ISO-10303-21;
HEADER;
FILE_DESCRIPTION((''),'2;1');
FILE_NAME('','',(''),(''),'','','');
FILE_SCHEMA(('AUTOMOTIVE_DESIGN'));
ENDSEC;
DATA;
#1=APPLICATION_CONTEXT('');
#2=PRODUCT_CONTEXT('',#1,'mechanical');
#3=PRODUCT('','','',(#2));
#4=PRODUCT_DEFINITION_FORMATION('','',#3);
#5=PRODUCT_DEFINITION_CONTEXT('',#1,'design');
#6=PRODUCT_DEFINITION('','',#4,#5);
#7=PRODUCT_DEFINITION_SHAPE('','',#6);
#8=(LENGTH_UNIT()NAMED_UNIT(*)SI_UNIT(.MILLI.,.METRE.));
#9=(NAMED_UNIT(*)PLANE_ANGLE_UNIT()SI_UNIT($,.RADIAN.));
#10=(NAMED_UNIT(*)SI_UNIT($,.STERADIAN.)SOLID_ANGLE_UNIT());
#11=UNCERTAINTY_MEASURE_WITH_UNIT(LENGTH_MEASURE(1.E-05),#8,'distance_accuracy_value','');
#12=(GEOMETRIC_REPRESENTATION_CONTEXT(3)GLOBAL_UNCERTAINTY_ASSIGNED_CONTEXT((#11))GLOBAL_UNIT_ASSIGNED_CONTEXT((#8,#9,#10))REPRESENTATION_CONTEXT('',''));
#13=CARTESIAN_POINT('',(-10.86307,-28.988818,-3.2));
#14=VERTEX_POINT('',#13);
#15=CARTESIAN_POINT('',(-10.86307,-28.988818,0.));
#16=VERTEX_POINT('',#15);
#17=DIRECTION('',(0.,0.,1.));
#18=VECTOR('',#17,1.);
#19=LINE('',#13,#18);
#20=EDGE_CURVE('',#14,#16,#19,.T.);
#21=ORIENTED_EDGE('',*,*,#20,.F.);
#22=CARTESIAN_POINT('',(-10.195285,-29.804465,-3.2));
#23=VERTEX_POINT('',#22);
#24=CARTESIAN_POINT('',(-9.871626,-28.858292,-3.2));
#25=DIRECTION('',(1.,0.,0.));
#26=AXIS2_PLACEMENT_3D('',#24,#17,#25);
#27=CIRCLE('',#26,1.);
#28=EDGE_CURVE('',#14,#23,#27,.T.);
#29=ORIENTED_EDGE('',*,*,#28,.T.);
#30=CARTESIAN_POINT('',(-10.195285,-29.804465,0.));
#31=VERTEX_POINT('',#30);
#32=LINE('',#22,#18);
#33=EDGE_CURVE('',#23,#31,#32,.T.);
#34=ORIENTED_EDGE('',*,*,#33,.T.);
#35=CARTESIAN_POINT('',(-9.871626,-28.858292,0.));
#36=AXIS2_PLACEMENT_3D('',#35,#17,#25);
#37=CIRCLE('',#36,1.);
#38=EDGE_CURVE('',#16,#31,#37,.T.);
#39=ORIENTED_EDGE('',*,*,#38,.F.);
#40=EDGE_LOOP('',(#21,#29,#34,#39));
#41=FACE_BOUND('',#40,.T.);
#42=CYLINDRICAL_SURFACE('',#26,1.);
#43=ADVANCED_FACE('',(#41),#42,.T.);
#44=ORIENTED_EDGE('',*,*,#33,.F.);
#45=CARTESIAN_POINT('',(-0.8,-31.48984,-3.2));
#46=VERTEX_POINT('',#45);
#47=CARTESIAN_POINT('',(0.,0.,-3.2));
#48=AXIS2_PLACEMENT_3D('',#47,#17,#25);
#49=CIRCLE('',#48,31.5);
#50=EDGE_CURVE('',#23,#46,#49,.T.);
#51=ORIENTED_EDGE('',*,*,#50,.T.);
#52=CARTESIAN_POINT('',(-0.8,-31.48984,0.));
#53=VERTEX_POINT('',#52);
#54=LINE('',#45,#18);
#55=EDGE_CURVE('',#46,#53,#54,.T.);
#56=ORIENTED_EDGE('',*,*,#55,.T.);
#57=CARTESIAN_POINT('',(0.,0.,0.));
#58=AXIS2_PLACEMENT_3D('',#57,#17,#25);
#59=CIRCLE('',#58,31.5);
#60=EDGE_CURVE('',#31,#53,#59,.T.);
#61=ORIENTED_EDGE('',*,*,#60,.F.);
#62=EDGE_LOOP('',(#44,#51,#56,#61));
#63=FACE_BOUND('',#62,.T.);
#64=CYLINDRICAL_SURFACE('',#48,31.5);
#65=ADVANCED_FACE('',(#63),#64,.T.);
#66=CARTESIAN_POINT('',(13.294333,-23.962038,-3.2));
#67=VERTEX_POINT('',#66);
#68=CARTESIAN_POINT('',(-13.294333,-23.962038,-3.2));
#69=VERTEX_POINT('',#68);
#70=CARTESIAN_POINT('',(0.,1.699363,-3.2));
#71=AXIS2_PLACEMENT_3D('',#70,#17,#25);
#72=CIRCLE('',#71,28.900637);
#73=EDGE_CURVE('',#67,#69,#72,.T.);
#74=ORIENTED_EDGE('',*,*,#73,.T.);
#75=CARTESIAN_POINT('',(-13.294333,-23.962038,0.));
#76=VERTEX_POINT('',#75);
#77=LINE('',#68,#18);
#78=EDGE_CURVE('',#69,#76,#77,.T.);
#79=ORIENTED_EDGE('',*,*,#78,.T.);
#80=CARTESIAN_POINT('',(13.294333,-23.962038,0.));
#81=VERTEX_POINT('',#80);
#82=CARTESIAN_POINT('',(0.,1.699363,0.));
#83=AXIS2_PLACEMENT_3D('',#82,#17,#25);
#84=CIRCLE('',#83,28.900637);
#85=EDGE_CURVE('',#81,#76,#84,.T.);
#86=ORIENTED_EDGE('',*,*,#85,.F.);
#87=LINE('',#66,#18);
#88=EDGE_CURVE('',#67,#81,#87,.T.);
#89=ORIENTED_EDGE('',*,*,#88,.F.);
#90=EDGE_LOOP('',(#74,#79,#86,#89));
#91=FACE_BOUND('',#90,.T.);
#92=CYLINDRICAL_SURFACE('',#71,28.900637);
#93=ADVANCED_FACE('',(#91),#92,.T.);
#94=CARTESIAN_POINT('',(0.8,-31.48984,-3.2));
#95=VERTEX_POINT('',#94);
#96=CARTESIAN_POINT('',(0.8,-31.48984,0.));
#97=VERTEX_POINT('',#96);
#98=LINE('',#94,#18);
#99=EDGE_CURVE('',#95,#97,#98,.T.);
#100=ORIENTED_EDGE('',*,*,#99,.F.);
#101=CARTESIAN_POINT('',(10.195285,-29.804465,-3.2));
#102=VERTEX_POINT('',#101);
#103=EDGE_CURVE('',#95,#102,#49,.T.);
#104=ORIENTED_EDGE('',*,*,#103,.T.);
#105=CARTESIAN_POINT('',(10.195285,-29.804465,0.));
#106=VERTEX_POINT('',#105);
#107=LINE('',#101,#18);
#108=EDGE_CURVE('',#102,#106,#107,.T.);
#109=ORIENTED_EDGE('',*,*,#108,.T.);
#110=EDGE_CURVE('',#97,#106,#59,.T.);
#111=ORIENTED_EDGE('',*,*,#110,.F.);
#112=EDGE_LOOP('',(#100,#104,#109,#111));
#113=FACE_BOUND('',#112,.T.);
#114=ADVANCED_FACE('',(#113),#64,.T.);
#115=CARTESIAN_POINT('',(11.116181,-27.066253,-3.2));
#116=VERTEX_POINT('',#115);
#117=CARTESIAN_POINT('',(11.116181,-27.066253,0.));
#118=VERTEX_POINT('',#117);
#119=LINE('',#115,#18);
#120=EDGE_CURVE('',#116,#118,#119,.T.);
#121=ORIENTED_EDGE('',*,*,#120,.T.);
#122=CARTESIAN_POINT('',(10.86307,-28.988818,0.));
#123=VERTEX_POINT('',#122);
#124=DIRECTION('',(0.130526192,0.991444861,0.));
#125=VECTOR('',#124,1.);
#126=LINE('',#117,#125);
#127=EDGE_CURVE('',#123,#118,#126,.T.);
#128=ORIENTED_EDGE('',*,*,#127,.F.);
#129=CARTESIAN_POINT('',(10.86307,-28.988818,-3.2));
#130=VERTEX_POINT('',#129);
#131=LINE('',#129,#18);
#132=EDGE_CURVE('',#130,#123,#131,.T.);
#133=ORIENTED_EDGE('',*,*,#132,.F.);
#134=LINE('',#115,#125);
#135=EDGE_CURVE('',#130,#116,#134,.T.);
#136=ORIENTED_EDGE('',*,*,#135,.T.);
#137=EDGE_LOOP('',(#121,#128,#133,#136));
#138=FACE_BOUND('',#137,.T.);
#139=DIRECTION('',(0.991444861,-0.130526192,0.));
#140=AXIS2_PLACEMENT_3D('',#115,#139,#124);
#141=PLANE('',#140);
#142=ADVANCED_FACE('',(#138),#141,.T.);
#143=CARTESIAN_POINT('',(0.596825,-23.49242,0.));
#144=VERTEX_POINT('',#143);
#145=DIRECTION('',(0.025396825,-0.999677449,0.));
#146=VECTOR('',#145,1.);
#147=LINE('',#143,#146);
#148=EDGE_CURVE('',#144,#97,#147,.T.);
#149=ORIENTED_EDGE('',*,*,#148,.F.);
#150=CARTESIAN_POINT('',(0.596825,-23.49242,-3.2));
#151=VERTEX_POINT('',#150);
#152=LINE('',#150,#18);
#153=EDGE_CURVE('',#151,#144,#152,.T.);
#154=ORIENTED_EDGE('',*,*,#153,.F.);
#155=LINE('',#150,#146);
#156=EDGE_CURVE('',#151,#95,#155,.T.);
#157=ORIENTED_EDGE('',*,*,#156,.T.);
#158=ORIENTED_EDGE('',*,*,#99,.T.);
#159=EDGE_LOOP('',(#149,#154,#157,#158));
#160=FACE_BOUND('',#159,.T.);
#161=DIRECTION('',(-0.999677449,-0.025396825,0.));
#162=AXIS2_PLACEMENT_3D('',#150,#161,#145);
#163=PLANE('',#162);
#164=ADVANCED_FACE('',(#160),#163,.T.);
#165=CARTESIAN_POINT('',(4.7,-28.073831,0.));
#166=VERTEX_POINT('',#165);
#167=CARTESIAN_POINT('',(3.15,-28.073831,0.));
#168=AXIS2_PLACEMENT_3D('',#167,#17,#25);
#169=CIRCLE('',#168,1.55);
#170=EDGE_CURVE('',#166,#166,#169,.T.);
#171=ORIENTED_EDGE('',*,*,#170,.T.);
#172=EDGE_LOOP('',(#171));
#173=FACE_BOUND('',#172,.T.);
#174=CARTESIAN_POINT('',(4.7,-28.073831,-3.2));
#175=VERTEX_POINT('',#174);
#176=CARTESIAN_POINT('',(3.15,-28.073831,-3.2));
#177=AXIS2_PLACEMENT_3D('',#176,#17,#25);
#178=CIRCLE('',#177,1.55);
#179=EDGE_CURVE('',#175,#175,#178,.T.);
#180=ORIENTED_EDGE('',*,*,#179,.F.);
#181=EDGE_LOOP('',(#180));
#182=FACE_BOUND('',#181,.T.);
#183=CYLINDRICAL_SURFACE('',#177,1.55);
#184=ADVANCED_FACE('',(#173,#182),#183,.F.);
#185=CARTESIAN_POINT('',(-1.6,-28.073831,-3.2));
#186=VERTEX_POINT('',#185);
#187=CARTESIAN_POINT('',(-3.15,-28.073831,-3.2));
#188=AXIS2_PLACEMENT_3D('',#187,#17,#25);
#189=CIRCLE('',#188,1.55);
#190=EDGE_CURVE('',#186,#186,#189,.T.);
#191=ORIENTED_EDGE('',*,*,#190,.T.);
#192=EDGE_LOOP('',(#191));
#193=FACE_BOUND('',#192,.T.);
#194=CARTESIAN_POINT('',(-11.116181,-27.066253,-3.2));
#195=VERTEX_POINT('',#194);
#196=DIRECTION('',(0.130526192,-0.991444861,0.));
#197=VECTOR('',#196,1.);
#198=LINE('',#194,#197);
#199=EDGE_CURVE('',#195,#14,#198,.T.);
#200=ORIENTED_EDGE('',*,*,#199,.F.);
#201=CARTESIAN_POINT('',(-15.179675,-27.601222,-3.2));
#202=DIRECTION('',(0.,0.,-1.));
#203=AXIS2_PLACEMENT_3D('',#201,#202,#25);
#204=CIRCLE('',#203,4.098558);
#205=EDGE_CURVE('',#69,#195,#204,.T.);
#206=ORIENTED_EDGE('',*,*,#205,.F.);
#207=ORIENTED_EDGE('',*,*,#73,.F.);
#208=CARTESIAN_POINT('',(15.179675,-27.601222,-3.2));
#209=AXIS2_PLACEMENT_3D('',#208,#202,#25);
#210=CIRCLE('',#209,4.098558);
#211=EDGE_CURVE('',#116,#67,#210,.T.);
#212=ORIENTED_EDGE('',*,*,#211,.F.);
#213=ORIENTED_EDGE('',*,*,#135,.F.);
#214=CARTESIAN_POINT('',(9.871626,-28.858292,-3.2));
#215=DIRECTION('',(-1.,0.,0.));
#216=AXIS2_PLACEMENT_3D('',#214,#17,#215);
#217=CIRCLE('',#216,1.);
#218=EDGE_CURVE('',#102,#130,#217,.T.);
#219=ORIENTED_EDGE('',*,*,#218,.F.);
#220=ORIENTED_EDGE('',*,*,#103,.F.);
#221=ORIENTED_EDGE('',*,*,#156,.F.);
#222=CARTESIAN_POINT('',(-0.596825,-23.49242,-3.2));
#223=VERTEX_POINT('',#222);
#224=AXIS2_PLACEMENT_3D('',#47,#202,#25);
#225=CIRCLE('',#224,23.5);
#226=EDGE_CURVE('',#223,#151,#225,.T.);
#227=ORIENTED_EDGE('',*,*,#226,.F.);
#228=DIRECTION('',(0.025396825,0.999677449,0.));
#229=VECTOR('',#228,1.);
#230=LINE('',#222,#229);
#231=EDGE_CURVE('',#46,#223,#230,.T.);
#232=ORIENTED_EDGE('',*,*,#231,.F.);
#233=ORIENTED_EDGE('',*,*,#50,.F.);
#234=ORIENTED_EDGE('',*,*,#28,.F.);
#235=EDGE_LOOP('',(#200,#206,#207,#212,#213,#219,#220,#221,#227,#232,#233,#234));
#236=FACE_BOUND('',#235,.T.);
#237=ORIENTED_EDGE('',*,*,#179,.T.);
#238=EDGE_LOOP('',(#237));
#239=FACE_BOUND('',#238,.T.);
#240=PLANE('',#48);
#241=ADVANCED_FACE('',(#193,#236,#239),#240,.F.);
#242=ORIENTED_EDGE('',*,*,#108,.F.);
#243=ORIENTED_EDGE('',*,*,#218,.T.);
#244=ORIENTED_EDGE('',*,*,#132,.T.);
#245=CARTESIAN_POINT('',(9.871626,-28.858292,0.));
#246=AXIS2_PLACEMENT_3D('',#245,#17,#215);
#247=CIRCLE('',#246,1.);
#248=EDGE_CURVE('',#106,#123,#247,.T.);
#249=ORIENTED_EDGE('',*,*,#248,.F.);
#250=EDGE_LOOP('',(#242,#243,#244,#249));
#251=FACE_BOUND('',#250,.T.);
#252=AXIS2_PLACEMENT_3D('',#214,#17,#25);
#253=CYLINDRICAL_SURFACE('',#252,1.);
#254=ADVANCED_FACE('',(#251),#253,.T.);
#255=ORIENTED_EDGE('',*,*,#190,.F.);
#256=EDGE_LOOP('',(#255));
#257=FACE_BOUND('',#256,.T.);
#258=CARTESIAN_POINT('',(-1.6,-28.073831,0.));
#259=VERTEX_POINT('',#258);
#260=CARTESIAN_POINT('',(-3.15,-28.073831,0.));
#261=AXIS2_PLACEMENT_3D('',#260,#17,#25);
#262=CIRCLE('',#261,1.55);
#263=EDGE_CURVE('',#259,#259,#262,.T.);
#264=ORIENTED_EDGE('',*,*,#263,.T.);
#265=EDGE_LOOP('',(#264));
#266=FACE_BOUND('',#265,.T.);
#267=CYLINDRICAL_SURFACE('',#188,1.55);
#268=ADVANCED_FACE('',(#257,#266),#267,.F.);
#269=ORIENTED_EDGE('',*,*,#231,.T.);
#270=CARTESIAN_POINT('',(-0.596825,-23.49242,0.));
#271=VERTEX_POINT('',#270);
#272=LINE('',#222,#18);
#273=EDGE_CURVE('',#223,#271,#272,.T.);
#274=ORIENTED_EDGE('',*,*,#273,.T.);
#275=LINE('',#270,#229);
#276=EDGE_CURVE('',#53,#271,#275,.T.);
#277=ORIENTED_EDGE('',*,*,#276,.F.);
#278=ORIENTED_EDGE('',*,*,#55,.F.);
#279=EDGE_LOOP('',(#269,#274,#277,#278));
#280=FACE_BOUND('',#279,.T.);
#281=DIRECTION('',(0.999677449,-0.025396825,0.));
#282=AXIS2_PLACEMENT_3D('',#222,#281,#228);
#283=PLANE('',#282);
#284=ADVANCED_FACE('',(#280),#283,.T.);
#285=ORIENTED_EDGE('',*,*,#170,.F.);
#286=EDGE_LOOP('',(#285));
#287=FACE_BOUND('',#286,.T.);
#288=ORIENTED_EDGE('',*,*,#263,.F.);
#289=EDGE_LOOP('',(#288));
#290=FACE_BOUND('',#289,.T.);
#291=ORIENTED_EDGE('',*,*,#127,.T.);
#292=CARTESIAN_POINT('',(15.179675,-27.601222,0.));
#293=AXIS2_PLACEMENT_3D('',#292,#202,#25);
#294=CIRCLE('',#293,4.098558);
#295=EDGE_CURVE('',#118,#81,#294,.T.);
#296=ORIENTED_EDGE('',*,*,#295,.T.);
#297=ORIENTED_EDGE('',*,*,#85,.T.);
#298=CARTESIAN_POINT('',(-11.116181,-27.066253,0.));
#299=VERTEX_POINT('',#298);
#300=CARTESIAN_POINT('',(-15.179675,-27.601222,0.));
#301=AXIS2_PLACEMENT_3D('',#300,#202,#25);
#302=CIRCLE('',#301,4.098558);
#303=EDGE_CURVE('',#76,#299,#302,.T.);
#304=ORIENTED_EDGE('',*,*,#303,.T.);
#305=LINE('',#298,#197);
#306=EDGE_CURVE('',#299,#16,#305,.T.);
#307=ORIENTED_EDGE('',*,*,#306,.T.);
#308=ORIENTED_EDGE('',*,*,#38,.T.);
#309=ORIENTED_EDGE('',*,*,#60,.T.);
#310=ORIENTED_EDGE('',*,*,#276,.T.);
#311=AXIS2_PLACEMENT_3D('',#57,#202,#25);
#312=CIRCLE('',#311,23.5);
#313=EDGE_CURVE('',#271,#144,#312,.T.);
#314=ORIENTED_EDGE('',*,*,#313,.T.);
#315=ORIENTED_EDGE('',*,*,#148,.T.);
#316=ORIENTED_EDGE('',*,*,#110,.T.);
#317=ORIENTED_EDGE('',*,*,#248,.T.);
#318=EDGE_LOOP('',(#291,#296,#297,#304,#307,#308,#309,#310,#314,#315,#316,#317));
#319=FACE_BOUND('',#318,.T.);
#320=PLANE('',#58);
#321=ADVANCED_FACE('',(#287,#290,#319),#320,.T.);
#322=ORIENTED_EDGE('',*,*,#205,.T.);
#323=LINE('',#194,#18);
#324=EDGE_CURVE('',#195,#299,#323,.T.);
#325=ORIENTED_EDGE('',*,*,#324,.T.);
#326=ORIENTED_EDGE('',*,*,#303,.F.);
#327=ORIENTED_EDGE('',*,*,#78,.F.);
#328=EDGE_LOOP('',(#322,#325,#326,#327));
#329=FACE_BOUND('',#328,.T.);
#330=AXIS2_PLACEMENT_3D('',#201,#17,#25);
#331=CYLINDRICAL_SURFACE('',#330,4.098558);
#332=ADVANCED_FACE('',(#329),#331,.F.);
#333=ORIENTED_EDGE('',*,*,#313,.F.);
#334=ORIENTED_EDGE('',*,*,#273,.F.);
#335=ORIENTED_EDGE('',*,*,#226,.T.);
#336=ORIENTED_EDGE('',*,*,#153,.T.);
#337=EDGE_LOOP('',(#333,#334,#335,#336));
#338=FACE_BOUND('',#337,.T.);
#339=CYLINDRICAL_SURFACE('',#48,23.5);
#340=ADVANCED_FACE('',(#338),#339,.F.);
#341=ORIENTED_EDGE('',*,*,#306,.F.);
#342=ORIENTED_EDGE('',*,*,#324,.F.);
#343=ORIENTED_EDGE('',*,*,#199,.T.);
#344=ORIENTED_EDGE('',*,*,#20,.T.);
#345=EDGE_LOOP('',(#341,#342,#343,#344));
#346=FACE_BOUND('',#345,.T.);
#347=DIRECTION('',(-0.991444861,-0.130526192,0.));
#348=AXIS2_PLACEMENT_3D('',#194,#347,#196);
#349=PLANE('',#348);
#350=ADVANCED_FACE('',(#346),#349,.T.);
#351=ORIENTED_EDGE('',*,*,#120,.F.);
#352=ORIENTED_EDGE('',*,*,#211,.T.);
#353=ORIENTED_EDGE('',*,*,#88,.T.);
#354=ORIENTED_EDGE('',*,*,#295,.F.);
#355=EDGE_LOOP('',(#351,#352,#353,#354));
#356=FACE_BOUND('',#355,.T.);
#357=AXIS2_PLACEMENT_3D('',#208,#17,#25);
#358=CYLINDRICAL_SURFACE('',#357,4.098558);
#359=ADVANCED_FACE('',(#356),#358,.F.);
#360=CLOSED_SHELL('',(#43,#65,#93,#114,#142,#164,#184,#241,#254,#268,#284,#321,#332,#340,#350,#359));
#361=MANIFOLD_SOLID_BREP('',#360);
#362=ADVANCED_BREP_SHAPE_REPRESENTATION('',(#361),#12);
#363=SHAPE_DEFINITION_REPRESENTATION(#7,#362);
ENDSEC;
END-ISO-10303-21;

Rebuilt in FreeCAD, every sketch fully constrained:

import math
import FreeCAD as App
import Part
import Sketcher

V = App.Vector
Q = App.Units.Quantity

doc = App.newDocument("Part")
body = doc.addObject("PartDesign::Body", "Body")

sketch1 = doc.addObject("Sketcher::SketchObject", "Sketch")
body.addObject(sketch1)
sketch1.AttachmentSupport = (doc.XY_Plane, [""])
sketch1.MapMode = "FlatFace"
sketch1.addGeometry([
    Part.LineSegment(V(0.596825, -23.49242, 0), V(0.8, -31.48984, 0)),
    Part.ArcOfCircle(Part.Circle(V(0, 0, 0), V(0, 0, 1), 31.5), math.radians(-88.544713), math.radians(-71.115598)),
    Part.ArcOfCircle(Part.Circle(V(9.871626, -28.858292, 0), V(0, 0, 1), 1), math.radians(-71.115598), math.radians(-7.5)),
    Part.LineSegment(V(10.86307, -28.988818, 0), V(11.116181, -27.066253, 0)),
    Part.ArcOfCircle(Part.Circle(V(15.179675, -27.601222, 0), V(0, 0, 1), 4.098558), math.radians(117.387197), math.radians(172.5)),
    Part.ArcOfCircle(Part.Circle(V(0, 1.699363, 0), V(0, 0, 1), 28.900637), math.radians(-62.612803), math.radians(242.612803)),
    Part.ArcOfCircle(Part.Circle(V(-15.179675, -27.601222, 0), V(0, 0, 1), 4.098558), math.radians(7.5), math.radians(62.612803)),
    Part.LineSegment(V(-11.116181, -27.066253, 0), V(-10.86307, -28.988818, 0)),
    Part.ArcOfCircle(Part.Circle(V(-9.871626, -28.858292, 0), V(0, 0, 1), 1), math.radians(-172.5), math.radians(-108.884402)),
    Part.ArcOfCircle(Part.Circle(V(0, 0, 0), V(0, 0, 1), 31.5), math.radians(-108.884402), math.radians(-91.455287)),
    Part.LineSegment(V(-0.8, -31.48984, 0), V(-0.596825, -23.49242, 0)),
    Part.ArcOfCircle(Part.Circle(V(0, 0, 0), V(0, 0, 1), 23.5), math.radians(-88.544713), math.radians(268.544713)),
    Part.Circle(V(-3.15, -28.073831, 0), V(0, 0, 1), 1.55),
    Part.Circle(V(3.15, -28.073831, 0), V(0, 0, 1), 1.55),
], False)
sketch1.addConstraint([
    Sketcher.Constraint("Coincident", 0, 2, 1, 1),
    Sketcher.Constraint("Tangent", 1, 2, 2, 1),
    Sketcher.Constraint("Tangent", 2, 2, 3, 1),
    Sketcher.Constraint("Tangent", 3, 2, 4, 2),
    Sketcher.Constraint("Tangent", 4, 1, 5, 1),
    Sketcher.Constraint("Tangent", 5, 2, 6, 2),
    Sketcher.Constraint("Tangent", 6, 1, 7, 1),
    Sketcher.Constraint("Tangent", 7, 2, 8, 1),
    Sketcher.Constraint("Tangent", 8, 2, 9, 1),
    Sketcher.Constraint("Coincident", 9, 2, 10, 1),
    Sketcher.Constraint("Coincident", 10, 2, 11, 2),
    Sketcher.Constraint("Coincident", 11, 1, 0, 1),
    Sketcher.Constraint("Coincident", 1, 3, -1, 1),
    Sketcher.Constraint("Coincident", 9, 3, -1, 1),
    Sketcher.Constraint("Coincident", 11, 3, -1, 1),
    Sketcher.Constraint("Equal", 4, 6),
    Sketcher.Constraint("Equal", 2, 8),
    Sketcher.Constraint("Equal", 1, 9),
    Sketcher.Constraint("Equal", 12, 13),
    Sketcher.Constraint("Symmetric", 4, 3, 6, 3, -2),
    Sketcher.Constraint("Symmetric", 12, 3, 13, 3, -2),
    Sketcher.Constraint("Horizontal", 2, 3, 8, 3),
    Sketcher.Constraint("Horizontal", 0, 2, 9, 2),
    Sketcher.Constraint("Horizontal", 10, 2, 11, 1),
    Sketcher.Constraint("Radius", 2, Q("1 mm")),
    Sketcher.Constraint("Diameter", 12, Q("3.1 mm")),
    Sketcher.Constraint("Radius", 1, Q("31.5 mm")),
    Sketcher.Constraint("Radius", 11, Q("23.5 mm")),
    Sketcher.Constraint("Angle", 3, Q("82.5 deg")),
    Sketcher.Constraint("DistanceX", -1, 1, 0, 2, Q("0.8 mm")),
    Sketcher.Constraint("DistanceX", 12, 3, 13, 3, Q("6.3 mm")),
    Sketcher.Constraint("Radius", 4, Q("4.098558 mm")),
    Sketcher.Constraint("Radius", 5, Q("28.900637 mm")),
    Sketcher.Constraint("DistanceX", 6, 3, 2, 3, Q("25.051301 mm")),
    Sketcher.Constraint("DistanceX", 8, 3, 10, 2, Q("9.2748 mm")),
    Sketcher.Constraint("DistanceY", 2, 3, -1, 1, Q("28.858292 mm")),
    Sketcher.Constraint("DistanceY", 12, 3, -1, 1, Q("28.073831 mm")),
])
pad1 = doc.addObject("PartDesign::Pad", "Pad")
body.addObject(pad1)
pad1.Profile = sketch1
pad1.Length = 3.2
pad1.Reversed = True

doc.recompute()
